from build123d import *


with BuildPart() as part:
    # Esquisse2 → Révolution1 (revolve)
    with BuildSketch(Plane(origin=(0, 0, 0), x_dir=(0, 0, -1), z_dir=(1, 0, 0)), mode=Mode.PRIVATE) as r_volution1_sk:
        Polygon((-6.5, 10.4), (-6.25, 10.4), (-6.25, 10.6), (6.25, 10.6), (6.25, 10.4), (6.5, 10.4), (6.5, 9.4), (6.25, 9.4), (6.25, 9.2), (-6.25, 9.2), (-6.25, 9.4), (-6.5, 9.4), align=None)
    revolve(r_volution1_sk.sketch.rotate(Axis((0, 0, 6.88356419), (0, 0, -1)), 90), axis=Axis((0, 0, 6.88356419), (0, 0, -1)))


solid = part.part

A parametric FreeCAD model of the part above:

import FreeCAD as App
import Part
import Sketcher

V = App.Vector
Q = App.Units.Quantity


def add_polygon(sketch, points):
    """Adds a closed chain of lines whose ends are joined by coincident constraints."""
    first, n = sketch.GeometryCount, len(points)
    for a, b in zip(points, points[1:] + points[:1]):
        sketch.addGeometry(Part.LineSegment(App.Vector(*a, 0), App.Vector(*b, 0)), False)
    for i in range(n):
        sketch.addConstraint(Sketcher.Constraint("Coincident", first + i, 2, first + (i + 1) % n, 1))

doc = App.newDocument("Part")
body = doc.addObject("PartDesign::Body", "Body")

# Sketch on YZ plane
sketch1 = body.newObject("Sketcher::SketchObject", "Sketch")
sketch1.AttachmentSupport = (doc.getObject("YZ_Plane"), [""])
sketch1.MapMode = "FlatFace"
add_polygon(sketch1, [(10.4, 6.25), (10.4, 6.5), (9.4, 6.5), (9.4, 6.25), (9.2, 6.25), (9.2, -6.25), (9.4, -6.25), (9.4, -6.5), (10.4, -6.5), (10.4, -6.25), (10.6, -6.25), (10.6, 6.25)])  # lines 0-11
sketch1.addConstraint([
    Sketcher.Constraint("Vertical", 0),
    Sketcher.Constraint("Horizontal", 1),
    Sketcher.Constraint("Vertical", 2),
    Sketcher.Constraint("Horizontal", 3),
    Sketcher.Constraint("Vertical", 4),
    Sketcher.Constraint("Horizontal", 5),
    Sketcher.Constraint("Vertical", 6),
    Sketcher.Constraint("Horizontal", 7),
    Sketcher.Constraint("Vertical", 8),
    Sketcher.Constraint("Horizontal", 9),
    Sketcher.Constraint("Vertical", 10),
    Sketcher.Constraint("Horizontal", 11),
    Sketcher.Constraint("Symmetric", 2, 2, 5, 2, -1),
    Sketcher.Constraint("Symmetric", 0, 2, 7, 2, -1),
    Sketcher.Constraint("Horizontal", 5, 2, 8, 2),
    Sketcher.Constraint("Horizontal", 3, 2, 10, 2),
    Sketcher.Constraint("Equal", 5, 9),
    Sketcher.Constraint("DistanceX", 1, 2, 1, 1, Q("1 mm")),
    Sketcher.Constraint("DistanceX", 3, 2, 3, 1, Q("0.2 mm")),
    Sketcher.Constraint("DistanceY", 4, 2, 4, 1, Q("12.5 mm")),
    Sketcher.Constraint("DistanceY", 6, 2, 1, 2, Q("13 mm")),
    Sketcher.Constraint("DistanceX", -1, 1, 0, 2, Q("10.4 mm")),
])
revolution = body.newObject("PartDesign::Revolution", "Revolution")
revolution.Profile = sketch1
revolution.ReferenceAxis = (sketch1, ["V_Axis"])
revolution.Angle = 360

doc.recompute()
